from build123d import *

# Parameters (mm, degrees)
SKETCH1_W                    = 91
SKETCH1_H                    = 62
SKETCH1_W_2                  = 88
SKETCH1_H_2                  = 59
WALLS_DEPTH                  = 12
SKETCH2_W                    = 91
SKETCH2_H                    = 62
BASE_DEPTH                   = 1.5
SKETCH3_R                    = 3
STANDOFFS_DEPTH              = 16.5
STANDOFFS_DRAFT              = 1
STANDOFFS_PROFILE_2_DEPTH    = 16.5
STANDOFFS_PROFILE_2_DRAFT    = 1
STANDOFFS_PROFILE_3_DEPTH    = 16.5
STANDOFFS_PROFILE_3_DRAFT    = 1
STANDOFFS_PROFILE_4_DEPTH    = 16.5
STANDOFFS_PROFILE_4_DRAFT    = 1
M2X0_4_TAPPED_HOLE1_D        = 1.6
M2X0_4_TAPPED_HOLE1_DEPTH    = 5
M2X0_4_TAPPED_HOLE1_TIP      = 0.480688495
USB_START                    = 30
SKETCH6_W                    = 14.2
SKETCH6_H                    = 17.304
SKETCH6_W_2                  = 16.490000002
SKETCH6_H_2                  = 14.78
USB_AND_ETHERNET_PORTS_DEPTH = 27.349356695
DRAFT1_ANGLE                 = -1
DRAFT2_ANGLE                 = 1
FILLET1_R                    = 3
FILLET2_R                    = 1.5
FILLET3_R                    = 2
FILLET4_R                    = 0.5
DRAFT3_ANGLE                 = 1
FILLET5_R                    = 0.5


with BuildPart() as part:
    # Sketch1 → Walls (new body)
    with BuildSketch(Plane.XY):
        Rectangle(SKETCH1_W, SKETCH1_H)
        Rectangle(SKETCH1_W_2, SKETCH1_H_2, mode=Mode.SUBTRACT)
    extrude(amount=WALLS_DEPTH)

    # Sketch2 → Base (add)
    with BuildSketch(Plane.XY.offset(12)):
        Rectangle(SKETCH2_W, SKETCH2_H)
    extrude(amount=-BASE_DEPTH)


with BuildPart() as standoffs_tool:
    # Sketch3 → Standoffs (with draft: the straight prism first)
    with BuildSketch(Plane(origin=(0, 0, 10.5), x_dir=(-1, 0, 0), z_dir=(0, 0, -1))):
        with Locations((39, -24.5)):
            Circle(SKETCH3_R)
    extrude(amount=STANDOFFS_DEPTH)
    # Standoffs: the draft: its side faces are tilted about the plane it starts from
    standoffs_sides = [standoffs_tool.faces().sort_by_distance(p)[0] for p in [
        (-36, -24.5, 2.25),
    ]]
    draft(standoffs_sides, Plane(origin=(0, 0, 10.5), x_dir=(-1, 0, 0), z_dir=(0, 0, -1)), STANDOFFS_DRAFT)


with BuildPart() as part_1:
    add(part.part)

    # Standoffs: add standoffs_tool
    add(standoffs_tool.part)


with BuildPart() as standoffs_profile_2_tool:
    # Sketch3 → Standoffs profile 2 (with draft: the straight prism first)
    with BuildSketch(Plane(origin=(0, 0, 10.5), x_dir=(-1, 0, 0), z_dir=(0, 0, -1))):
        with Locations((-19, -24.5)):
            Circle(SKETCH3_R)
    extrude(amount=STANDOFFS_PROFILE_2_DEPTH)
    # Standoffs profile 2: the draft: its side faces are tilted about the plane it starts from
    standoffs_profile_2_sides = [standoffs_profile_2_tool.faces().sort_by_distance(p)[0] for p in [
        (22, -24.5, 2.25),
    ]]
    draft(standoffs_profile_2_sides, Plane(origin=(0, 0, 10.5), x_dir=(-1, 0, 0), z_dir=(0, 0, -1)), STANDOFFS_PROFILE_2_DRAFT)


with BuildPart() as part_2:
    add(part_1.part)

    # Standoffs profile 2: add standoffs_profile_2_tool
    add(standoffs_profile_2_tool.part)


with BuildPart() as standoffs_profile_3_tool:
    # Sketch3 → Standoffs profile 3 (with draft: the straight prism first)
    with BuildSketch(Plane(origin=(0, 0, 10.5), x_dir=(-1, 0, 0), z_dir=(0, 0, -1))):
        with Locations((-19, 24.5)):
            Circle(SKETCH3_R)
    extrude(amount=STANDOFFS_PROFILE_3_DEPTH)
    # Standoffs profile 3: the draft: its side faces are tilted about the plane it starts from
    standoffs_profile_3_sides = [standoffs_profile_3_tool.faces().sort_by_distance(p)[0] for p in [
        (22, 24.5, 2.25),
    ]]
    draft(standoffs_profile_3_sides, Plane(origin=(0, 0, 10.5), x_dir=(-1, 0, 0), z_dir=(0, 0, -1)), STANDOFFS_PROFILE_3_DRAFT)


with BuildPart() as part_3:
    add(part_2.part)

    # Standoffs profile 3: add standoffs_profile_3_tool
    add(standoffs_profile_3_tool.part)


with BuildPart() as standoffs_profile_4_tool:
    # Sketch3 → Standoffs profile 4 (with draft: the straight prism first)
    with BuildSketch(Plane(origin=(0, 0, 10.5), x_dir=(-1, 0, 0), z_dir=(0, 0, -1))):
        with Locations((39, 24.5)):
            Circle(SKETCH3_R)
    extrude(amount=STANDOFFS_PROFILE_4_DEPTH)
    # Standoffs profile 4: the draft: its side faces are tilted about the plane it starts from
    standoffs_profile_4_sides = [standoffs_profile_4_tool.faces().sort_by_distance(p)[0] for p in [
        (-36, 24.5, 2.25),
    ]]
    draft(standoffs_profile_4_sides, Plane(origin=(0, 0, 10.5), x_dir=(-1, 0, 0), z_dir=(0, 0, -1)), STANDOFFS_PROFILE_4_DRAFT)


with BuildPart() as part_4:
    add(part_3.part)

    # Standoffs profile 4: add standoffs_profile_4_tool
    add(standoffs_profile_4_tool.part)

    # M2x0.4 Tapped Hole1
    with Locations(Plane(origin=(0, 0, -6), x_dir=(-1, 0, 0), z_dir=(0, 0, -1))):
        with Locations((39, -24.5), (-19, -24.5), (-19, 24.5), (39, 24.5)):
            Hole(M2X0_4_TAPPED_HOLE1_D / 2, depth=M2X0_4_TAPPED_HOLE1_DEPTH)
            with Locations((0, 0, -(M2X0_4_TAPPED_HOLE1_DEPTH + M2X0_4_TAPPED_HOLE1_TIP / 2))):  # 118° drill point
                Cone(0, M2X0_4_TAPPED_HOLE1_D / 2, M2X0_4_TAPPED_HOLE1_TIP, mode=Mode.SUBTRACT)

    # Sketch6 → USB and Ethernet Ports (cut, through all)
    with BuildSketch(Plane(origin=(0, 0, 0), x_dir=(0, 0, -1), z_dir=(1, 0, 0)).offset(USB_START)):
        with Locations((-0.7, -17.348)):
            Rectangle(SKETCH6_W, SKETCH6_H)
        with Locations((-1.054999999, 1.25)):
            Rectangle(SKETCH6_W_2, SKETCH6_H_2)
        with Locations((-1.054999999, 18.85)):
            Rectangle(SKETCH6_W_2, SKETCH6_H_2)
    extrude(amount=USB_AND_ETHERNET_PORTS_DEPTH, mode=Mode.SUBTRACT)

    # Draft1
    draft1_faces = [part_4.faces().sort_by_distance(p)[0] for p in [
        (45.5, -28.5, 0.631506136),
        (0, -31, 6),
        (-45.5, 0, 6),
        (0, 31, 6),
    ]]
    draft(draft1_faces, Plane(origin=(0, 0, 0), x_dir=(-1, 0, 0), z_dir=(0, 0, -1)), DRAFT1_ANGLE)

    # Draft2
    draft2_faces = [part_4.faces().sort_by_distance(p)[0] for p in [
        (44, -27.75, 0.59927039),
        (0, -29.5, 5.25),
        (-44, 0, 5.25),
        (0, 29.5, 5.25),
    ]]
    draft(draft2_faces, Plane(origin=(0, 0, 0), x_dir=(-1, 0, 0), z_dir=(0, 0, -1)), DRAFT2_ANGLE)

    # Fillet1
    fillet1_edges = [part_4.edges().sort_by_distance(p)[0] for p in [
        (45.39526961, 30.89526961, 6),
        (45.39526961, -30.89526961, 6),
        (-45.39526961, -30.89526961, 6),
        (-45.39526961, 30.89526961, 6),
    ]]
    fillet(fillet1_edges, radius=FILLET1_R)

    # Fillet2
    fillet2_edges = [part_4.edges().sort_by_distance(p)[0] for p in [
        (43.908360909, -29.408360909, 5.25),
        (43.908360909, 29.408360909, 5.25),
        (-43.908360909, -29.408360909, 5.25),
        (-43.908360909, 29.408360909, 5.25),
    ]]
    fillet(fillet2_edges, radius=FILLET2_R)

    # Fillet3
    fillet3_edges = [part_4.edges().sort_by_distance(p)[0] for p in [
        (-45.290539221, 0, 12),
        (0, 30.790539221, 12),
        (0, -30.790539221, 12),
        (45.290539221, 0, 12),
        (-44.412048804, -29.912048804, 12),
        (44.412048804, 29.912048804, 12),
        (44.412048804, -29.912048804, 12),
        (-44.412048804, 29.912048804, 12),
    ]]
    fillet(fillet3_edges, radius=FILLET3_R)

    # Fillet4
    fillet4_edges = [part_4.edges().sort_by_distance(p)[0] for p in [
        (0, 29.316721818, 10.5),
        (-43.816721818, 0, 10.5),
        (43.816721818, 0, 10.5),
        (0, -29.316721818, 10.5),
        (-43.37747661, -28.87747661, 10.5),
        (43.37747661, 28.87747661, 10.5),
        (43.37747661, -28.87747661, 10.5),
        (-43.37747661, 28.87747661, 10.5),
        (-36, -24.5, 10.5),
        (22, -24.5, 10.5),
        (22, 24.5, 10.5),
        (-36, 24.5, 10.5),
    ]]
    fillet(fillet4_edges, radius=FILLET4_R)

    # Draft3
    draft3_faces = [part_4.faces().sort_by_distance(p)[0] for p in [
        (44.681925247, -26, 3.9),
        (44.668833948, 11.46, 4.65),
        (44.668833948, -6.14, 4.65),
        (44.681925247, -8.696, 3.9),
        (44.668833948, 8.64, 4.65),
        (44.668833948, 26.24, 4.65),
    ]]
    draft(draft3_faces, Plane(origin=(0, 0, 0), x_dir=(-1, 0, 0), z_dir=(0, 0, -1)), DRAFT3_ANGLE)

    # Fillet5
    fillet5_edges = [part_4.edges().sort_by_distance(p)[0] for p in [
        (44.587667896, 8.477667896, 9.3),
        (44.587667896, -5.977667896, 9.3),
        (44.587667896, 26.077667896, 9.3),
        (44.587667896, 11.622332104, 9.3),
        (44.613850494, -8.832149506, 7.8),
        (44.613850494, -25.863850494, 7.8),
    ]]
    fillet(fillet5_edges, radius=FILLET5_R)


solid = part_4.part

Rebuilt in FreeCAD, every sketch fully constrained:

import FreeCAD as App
import Part
import Sketcher
Q = App.Units.Quantity


def edges_at(feature, points):
    """Names of the edges that pass closest to the given points."""
    edges = feature.Shape.Edges
    near = lambda p: min(range(len(edges)), key=lambda i: edges[i].distToShape(Part.Vertex(*p))[0])
    return sorted({f"Edge{near(p) + 1}" for p in points})


def faces_at(feature, points):
    """Names of the faces that lie closest to the given points."""
    faces = feature.Shape.Faces
    near = lambda p: min(range(len(faces)), key=lambda i: faces[i].distToShape(Part.Vertex(*p))[0])
    return sorted({f"Face{near(p) + 1}" for p in points})

doc = App.newDocument("Part")
body = doc.addObject("PartDesign::Body", "Body")

# Sketch on XY plane
sketch1 = doc.addObject("Sketcher::SketchObject", "Sketch")
body.addObject(sketch1)
sketch1.AttachmentSupport = (doc.XY_Plane, [""])
sketch1.MapMode = "FlatFace"
sketch1.addGeometry(Part.LineSegment(App.Vector(-46, 31, 0), App.Vector(-46, -31, 0)), False)
sketch1.addGeometry(Part.LineSegment(App.Vector(-46, -31, 0), App.Vector(46, -31, 0)), False)
sketch1.addGeometry(Part.LineSegment(App.Vector(46, -31, 0), App.Vector(46, 31, 0)), False)
sketch1.addGeometry(Part.LineSegment(App.Vector(46, 31, 0), App.Vector(-46, 31, 0)), False)
sketch1.addGeometry(Part.LineSegment(App.Vector(44, -30, 0), App.Vector(-44, -30, 0)), False)
sketch1.addGeometry(Part.LineSegment(App.Vector(-44, -30, 0), App.Vector(-44, 30, 0)), False)
sketch1.addGeometry(Part.LineSegment(App.Vector(-44, 30, 0), App.Vector(44, 30, 0)), False)
sketch1.addGeometry(Part.LineSegment(App.Vector(44, 30, 0), App.Vector(44, -30, 0)), False)
sketch1.addConstraint(Sketcher.Constraint("Coincident", 0, 2, 1, 1))
sketch1.addConstraint(Sketcher.Constraint("Coincident", 1, 2, 2, 1))
sketch1.addConstraint(Sketcher.Constraint("Coincident", 2, 2, 3, 1))
sketch1.addConstraint(Sketcher.Constraint("Coincident", 3, 2, 0, 1))
sketch1.addConstraint(Sketcher.Constraint("Coincident", 4, 2, 5, 1))
sketch1.addConstraint(Sketcher.Constraint("Coincident", 5, 2, 6, 1))
sketch1.addConstraint(Sketcher.Constraint("Coincident", 6, 2, 7, 1))
sketch1.addConstraint(Sketcher.Constraint("Coincident", 7, 2, 4, 1))
sketch1.addConstraint(Sketcher.Constraint("Vertical", 0))
sketch1.addConstraint(Sketcher.Constraint("Horizontal", 1))
sketch1.addConstraint(Sketcher.Constraint("Vertical", 2))
sketch1.addConstraint(Sketcher.Constraint("Horizontal", 3))
sketch1.addConstraint(Sketcher.Constraint("Horizontal", 4))
sketch1.addConstraint(Sketcher.Constraint("Vertical", 5))
sketch1.addConstraint(Sketcher.Constraint("Horizontal", 6))
sketch1.addConstraint(Sketcher.Constraint("Vertical", 7))
sketch1.addConstraint(Sketcher.Constraint("Symmetric", 0, 2, 2, 2, -1, 1))
sketch1.addConstraint(Sketcher.Constraint("Symmetric", 4, 2, 6, 2, -1, 1))
sketch1.addConstraint(Sketcher.Constraint("DistanceX", 1, 1, 1, 2, Q("91 mm")))
sketch1.addConstraint(Sketcher.Constraint("DistanceX", 4, 2, 4, 1, Q("88 mm")))
sketch1.addConstraint(Sketcher.Constraint("DistanceY", 0, 2, 0, 1, Q("62 mm")))
sketch1.addConstraint(Sketcher.Constraint("DistanceY", 5, 1, 5, 2, Q("59 mm")))
pad1 = doc.addObject("PartDesign::Pad", "Pad")
body.addObject(pad1)
pad1.Profile = sketch1
pad1.Length = 12

# Sketch on XY plane
sketch2 = doc.addObject("Sketcher::SketchObject", "Sketch001")
body.addObject(sketch2)
sketch2.AttachmentSupport = (doc.XY_Plane, [""])
sketch2.MapMode = "FlatFace"
sketch2.AttachmentOffset = App.Placement(App.Vector(0, 0, 12), App.Rotation())
sketch2.addGeometry(Part.LineSegment(App.Vector(-46, 31, 0), App.Vector(-46, -31, 0)), False)
sketch2.addGeometry(Part.LineSegment(App.Vector(-46, -31, 0), App.Vector(46, -31, 0)), False)
sketch2.addGeometry(Part.LineSegment(App.Vector(46, -31, 0), App.Vector(46, 31, 0)), False)
sketch2.addGeometry(Part.LineSegment(App.Vector(46, 31, 0), App.Vector(-46, 31, 0)), False)
sketch2.addConstraint(Sketcher.Constraint("Coincident", 0, 2, 1, 1))
sketch2.addConstraint(Sketcher.Constraint("Coincident", 1, 2, 2, 1))
sketch2.addConstraint(Sketcher.Constraint("Coincident", 2, 2, 3, 1))
sketch2.addConstraint(Sketcher.Constraint("Coincident", 3, 2, 0, 1))
sketch2.addConstraint(Sketcher.Constraint("Vertical", 0))
sketch2.addConstraint(Sketcher.Constraint("Horizontal", 1))
sketch2.addConstraint(Sketcher.Constraint("Vertical", 2))
sketch2.addConstraint(Sketcher.Constraint("Horizontal", 3))
sketch2.addConstraint(Sketcher.Constraint("Symmetric", 0, 2, 2, 2, -1, 1))
sketch2.addConstraint(Sketcher.Constraint("DistanceX", 1, 1, 1, 2, Q("91 mm")))
sketch2.addConstraint(Sketcher.Constraint("DistanceY", 0, 2, 0, 1, Q("62 mm")))
pad2 = doc.addObject("PartDesign::Pad", "Pad001")
body.addObject(pad2)
pad2.Profile = sketch2
pad2.Length = 1.5
pad2.Reversed = True
body2 = doc.addObject("PartDesign::Body", "Body001")

# Sketch on XY plane
sketch3 = doc.addObject("Sketcher::SketchObject", "Sketch002")
body2.addObject(sketch3)
sketch3.AttachmentSupport = (doc.getObject("XY_Plane001"), [""])
sketch3.MapMode = "FlatFace"
sketch3.AttachmentOffset = App.Placement(App.Vector(0, 0, 10.5), App.Rotation())
sketch3.addGeometry(Part.Circle(App.Vector(-39, -24.5, 0), App.Vector(0, 0, 1), 3), False)
sketch3.addConstraint(Sketcher.Constraint("Diameter", 0, Q("6 mm")))
sketch3.addConstraint(Sketcher.Constraint("DistanceX", 0, 3, -1, 1, Q("39 mm")))
sketch3.addConstraint(Sketcher.Constraint("DistanceY", 0, 3, -1, 1, Q("24.5 mm")))
pad3 = doc.addObject("PartDesign::Pad", "Pad002")
body2.addObject(pad3)
pad3.Profile = sketch3
pad3.Length = 16.5
pad3.Reversed = True
doc.recompute()

datumplane = doc.addObject("PartDesign::Plane", "DatumPlane")
body2.addObject(datumplane)
datumplane.AttachmentSupport = (doc.getObject("XY_Plane001"), [""])
datumplane.MapMode = "FlatFace"
datumplane.AttachmentOffset = App.Placement(App.Vector(0, 0, 10.5), App.Rotation())
draft = doc.addObject("PartDesign::Draft", "Draft")
body2.addObject(draft)
draft.Base = (pad3, faces_at(pad3, [(-36, -24.5, 2.25)]))
draft.NeutralPlane = (datumplane, [""])
draft.Angle = 1
draft.Reversed = True
doc.recompute()

boolean = doc.addObject("PartDesign::Boolean", "Boolean")
body.addObject(boolean)
boolean.Type = "Fuse"
boolean.addObjects([body2])
body3 = doc.addObject("PartDesign::Body", "Body002")

# Sketch on XY plane
sketch4 = doc.addObject("Sketcher::SketchObject", "Sketch003")
body3.addObject(sketch4)
sketch4.AttachmentSupport = (doc.getObject("XY_Plane002"), [""])
sketch4.MapMode = "FlatFace"
sketch4.AttachmentOffset = App.Placement(App.Vector(0, 0, 10.5), App.Rotation())
sketch4.addGeometry(Part.Circle(App.Vector(19, -24.5, 0), App.Vector(0, 0, 1), 3), False)
sketch4.addConstraint(Sketcher.Constraint("Diameter", 0, Q("6 mm")))
sketch4.addConstraint(Sketcher.Constraint("DistanceX", -1, 1, 0, 3, Q("19 mm")))
sketch4.addConstraint(Sketcher.Constraint("DistanceY", 0, 3, -1, 1, Q("24.5 mm")))
pad4 = doc.addObject("PartDesign::Pad", "Pad003")
body3.addObject(pad4)
pad4.Profile = sketch4
pad4.Length = 16.5
pad4.Reversed = True
doc.recompute()

datumplane2 = doc.addObject("PartDesign::Plane", "DatumPlane001")
body3.addObject(datumplane2)
datumplane2.AttachmentSupport = (doc.getObject("XY_Plane002"), [""])
datumplane2.MapMode = "FlatFace"
datumplane2.AttachmentOffset = App.Placement(App.Vector(0, 0, 10.5), App.Rotation())
draft2 = doc.addObject("PartDesign::Draft", "Draft001")
body3.addObject(draft2)
draft2.Base = (pad4, faces_at(pad4, [(22, -24.5, 2.25)]))
draft2.NeutralPlane = (datumplane2, [""])
draft2.Angle = 1
draft2.Reversed = True
doc.recompute()

boolean2 = doc.addObject("PartDesign::Boolean", "Boolean001")
body.addObject(boolean2)
boolean2.Type = "Fuse"
boolean2.addObjects([body3])
body4 = doc.addObject("PartDesign::Body", "Body003")

# Sketch on XY plane
sketch5 = doc.addObject("Sketcher::SketchObject", "Sketch004")
body4.addObject(sketch5)
sketch5.AttachmentSupport = (doc.getObject("XY_Plane003"), [""])
sketch5.MapMode = "FlatFace"
sketch5.AttachmentOffset = App.Placement(App.Vector(0, 0, 10.5), App.Rotation())
sketch5.addGeometry(Part.Circle(App.Vector(19, 24.5, 0), App.Vector(0, 0, 1), 3), False)
sketch5.addConstraint(Sketcher.Constraint("Diameter", 0, Q("6 mm")))
sketch5.addConstraint(Sketcher.Constraint("DistanceX", -1, 1, 0, 3, Q("19 mm")))
sketch5.addConstraint(Sketcher.Constraint("DistanceY", -1, 1, 0, 3, Q("24.5 mm")))
pad5 = doc.addObject("PartDesign::Pad", "Pad004")
body4.addObject(pad5)
pad5.Profile = sketch5
pad5.Length = 16.5
pad5.Reversed = True
doc.recompute()

datumplane3 = doc.addObject("PartDesign::Plane", "DatumPlane002")
body4.addObject(datumplane3)
datumplane3.AttachmentSupport = (doc.getObject("XY_Plane003"), [""])
datumplane3.MapMode = "FlatFace"
datumplane3.AttachmentOffset = App.Placement(App.Vector(0, 0, 10.5), App.Rotation())
draft3 = doc.addObject("PartDesign::Draft", "Draft002")
body4.addObject(draft3)
draft3.Base = (pad5, faces_at(pad5, [(22, 24.5, 2.25)]))
draft3.NeutralPlane = (datumplane3, [""])
draft3.Angle = 1
draft3.Reversed = True
doc.recompute()

boolean3 = doc.addObject("PartDesign::Boolean", "Boolean002")
body.addObject(boolean3)
boolean3.Type = "Fuse"
boolean3.addObjects([body4])
body5 = doc.addObject("PartDesign::Body", "Body004")

# Sketch on XY plane
sketch6 = doc.addObject("Sketcher::SketchObject", "Sketch005")
body5.addObject(sketch6)
sketch6.AttachmentSupport = (doc.getObject("XY_Plane004"), [""])
sketch6.MapMode = "FlatFace"
sketch6.AttachmentOffset = App.Placement(App.Vector(0, 0, 10.5), App.Rotation())
sketch6.addGeometry(Part.Circle(App.Vector(-39, 24.5, 0), App.Vector(0, 0, 1), 3), False)
sketch6.addConstraint(Sketcher.Constraint("Diameter", 0, Q("6 mm")))
sketch6.addConstraint(Sketcher.Constraint("DistanceX", 0, 3, -1, 1, Q("39 mm")))
sketch6.addConstraint(Sketcher.Constraint("DistanceY", -1, 1, 0, 3, Q("24.5 mm")))
pad6 = doc.addObject("PartDesign::Pad", "Pad005")
body5.addObject(pad6)
pad6.Profile = sketch6
pad6.Length = 16.5
pad6.Reversed = True
doc.recompute()

datumplane4 = doc.addObject("PartDesign::Plane", "DatumPlane003")
body5.addObject(datumplane4)
datumplane4.AttachmentSupport = (doc.getObject("XY_Plane004"), [""])
datumplane4.MapMode = "FlatFace"
datumplane4.AttachmentOffset = App.Placement(App.Vector(0, 0, 10.5), App.Rotation())
draft4 = doc.addObject("PartDesign::Draft", "Draft003")
body5.addObject(draft4)
draft4.Base = (pad6, faces_at(pad6, [(-36, 24.5, 2.25)]))
draft4.NeutralPlane = (datumplane4, [""])
draft4.Angle = 1
draft4.Reversed = True
doc.recompute()

boolean4 = doc.addObject("PartDesign::Boolean", "Boolean003")
body.addObject(boolean4)
boolean4.Type = "Fuse"
boolean4.addObjects([body5])

# Sketch on XY plane
sketch7 = doc.addObject("Sketcher::SketchObject", "Sketch006")
body.addObject(sketch7)
sketch7.AttachmentSupport = (doc.XY_Plane, [""])
sketch7.MapMode = "FlatFace"
sketch7.AttachmentOffset = App.Placement(App.Vector(0, 0, -6), App.Rotation())
sketch7.addGeometry(Part.Circle(App.Vector(-39, -24.5, 0), App.Vector(0, 0, 1), 0.8), False)
sketch7.addGeometry(Part.Circle(App.Vector(19, -24.5, 0), App.Vector(0, 0, 1), 0.8), False)
sketch7.addGeometry(Part.Circle(App.Vector(19, 24.5, 0), App.Vector(0, 0, 1), 0.8), False)
sketch7.addGeometry(Part.Circle(App.Vector(-39, 24.5, 0), App.Vector(0, 0, 1), 0.8), False)
sketch7.addConstraint(Sketcher.Constraint("Equal", 0, 1))
sketch7.addConstraint(Sketcher.Constraint("Equal", 1, 2))
sketch7.addConstraint(Sketcher.Constraint("Equal", 2, 3))
sketch7.addConstraint(Sketcher.Constraint("Symmetric", 1, 3, 2, 3, -1))
sketch7.addConstraint(Sketcher.Constraint("Symmetric", 0, 3, 3, 3, -1))
sketch7.addConstraint(Sketcher.Constraint("Horizontal", 0, 3, 1, 3))
sketch7.addConstraint(Sketcher.Constraint("Diameter", 0, Q("1.6 mm")))
sketch7.addConstraint(Sketcher.Constraint("DistanceX", 0, 3, -1, 1, Q("39 mm")))
sketch7.addConstraint(Sketcher.Constraint("DistanceX", -1, 1, 1, 3, Q("19 mm")))
sketch7.addConstraint(Sketcher.Constraint("DistanceY", 1, 3, 2, 3, Q("49 mm")))
doc.recompute()
hole = doc.addObject("PartDesign::Hole", "Hole")
body.addObject(hole)
hole.Profile = sketch7
hole.ThreadType = "None"
hole.Diameter = 1.6
hole.DepthType = "Dimension"
hole.Depth = 5
hole.DrillPoint = "Angled"
hole.DrillPointAngle = 118
hole.Reversed = True

# Sketch on YZ plane
sketch8 = doc.addObject("Sketcher::SketchObject", "Sketch007")
body.addObject(sketch8)
sketch8.AttachmentSupport = (doc.YZ_Plane, [""])
sketch8.MapMode = "FlatFace"
sketch8.AttachmentOffset = App.Placement(App.Vector(0, 0, 30), App.Rotation())
sketch8.addGeometry(Part.LineSegment(App.Vector(-9, 8, 0), App.Vector(-26, 8, 0)), False)
sketch8.addGeometry(Part.LineSegment(App.Vector(-26, 8, 0), App.Vector(-26, -6, 0)), False)
sketch8.addGeometry(Part.LineSegment(App.Vector(-26, -6, 0), App.Vector(-9, -6, 0)), False)
sketch8.addGeometry(Part.LineSegment(App.Vector(-9, -6, 0), App.Vector(-9, 8, 0)), False)
sketch8.addGeometry(Part.LineSegment(App.Vector(9, 9, 0), App.Vector(-6, 9, 0)), False)
sketch8.addGeometry(Part.LineSegment(App.Vector(-6, 9, 0), App.Vector(-6, -7, 0)), False)
sketch8.addGeometry(Part.LineSegment(App.Vector(-6, -7, 0), App.Vector(9, -7, 0)), False)
sketch8.addGeometry(Part.LineSegment(App.Vector(9, -7, 0), App.Vector(9, 9, 0)), False)
sketch8.addGeometry(Part.LineSegment(App.Vector(26, 9, 0), App.Vector(11, 9, 0)), False)
sketch8.addGeometry(Part.LineSegment(App.Vector(11, 9, 0), App.Vector(11, -7, 0)), False)
sketch8.addGeometry(Part.LineSegment(App.Vector(11, -7, 0), App.Vector(26, -7, 0)), False)
sketch8.addGeometry(Part.LineSegment(App.Vector(26, -7, 0), App.Vector(26, 9, 0)), False)
sketch8.addConstraint(Sketcher.Constraint("Coincident", 0, 2, 1, 1))
sketch8.addConstraint(Sketcher.Constraint("Coincident", 1, 2, 2, 1))
sketch8.addConstraint(Sketcher.Constraint("Coincident", 2, 2, 3, 1))
sketch8.addConstraint(Sketcher.Constraint("Coincident", 3, 2, 0, 1))
sketch8.addConstraint(Sketcher.Constraint("Coincident", 4, 2, 5, 1))
sketch8.addConstraint(Sketcher.Constraint("Coincident", 5, 2, 6, 1))
sketch8.addConstraint(Sketcher.Constraint("Coincident", 6, 2, 7, 1))
sketch8.addConstraint(Sketcher.Constraint("Coincident", 7, 2, 4, 1))
sketch8.addConstraint(Sketcher.Constraint("Coincident", 8, 2, 9, 1))
sketch8.addConstraint(Sketcher.Constraint("Coincident", 9, 2, 10, 1))
sketch8.addConstraint(Sketcher.Constraint("Coincident", 10, 2, 11, 1))
sketch8.addConstraint(Sketcher.Constraint("Coincident", 11, 2, 8, 1))
sketch8.addConstraint(Sketcher.Constraint("Horizontal", 0))
sketch8.addConstraint(Sketcher.Constraint("Vertical", 1))
sketch8.addConstraint(Sketcher.Constraint("Horizontal", 2))
sketch8.addConstraint(Sketcher.Constraint("Vertical", 3))
sketch8.addConstraint(Sketcher.Constraint("Horizontal", 4))
sketch8.addConstraint(Sketcher.Constraint("Vertical", 5))
sketch8.addConstraint(Sketcher.Constraint("Horizontal", 6))
sketch8.addConstraint(Sketcher.Constraint("Vertical", 7))
sketch8.addConstraint(Sketcher.Constraint("Horizontal", 8))
sketch8.addConstraint(Sketcher.Constraint("Vertical", 9))
sketch8.addConstraint(Sketcher.Constraint("Horizontal", 10))
sketch8.addConstraint(Sketcher.Constraint("Vertical", 11))
sketch8.addConstraint(Sketcher.Constraint("Horizontal", 7, 2, 8, 2))
sketch8.addConstraint(Sketcher.Constraint("Horizontal", 6, 2, 9, 2))
sketch8.addConstraint(Sketcher.Constraint("Equal", 6, 8))
sketch8.addConstraint(Sketcher.Constraint("DistanceY", 1, 2, 1, 1, Q("14.2 mm")))
sketch8.addConstraint(Sketcher.Constraint("DistanceX", 0, 2, -1, 1, Q("26 mm")))
sketch8.addConstraint(Sketcher.Constraint("DistanceX", 4, 2, 4, 1, Q("14.78 mm")))
sketch8.addConstraint(Sketcher.Constraint("DistanceY", 5, 2, 5, 1, Q("16.49 mm")))
sketch8.addConstraint(Sketcher.Constraint("DistanceY", -1, 1, 0, 2, Q("7.8 mm")))
sketch8.addConstraint(Sketcher.Constraint("DistanceY", -1, 1, 4, 2, Q("9.3 mm")))
sketch8.addConstraint(Sketcher.Constraint("DistanceX", 4, 2, 8, 2, Q("17.6 mm")))
sketch8.addConstraint(Sketcher.Constraint("DistanceX", 0, 2, 0, 1, Q("17.304 mm")))
sketch8.addConstraint(Sketcher.Constraint("DistanceX", 4, 2, -1, 1, Q("6.14 mm")))
pocket1 = doc.addObject("PartDesign::Pocket", "Pocket")
body.addObject(pocket1)
pocket1.Profile = sketch8
pocket1.Type = "ThroughAll"
pocket1.Reversed = True
doc.recompute()

draft5 = doc.addObject("PartDesign::Draft", "Draft004")
body.addObject(draft5)
draft5.Base = (pocket1, faces_at(pocket1, [
    (45.5, -12.4, 8.4),
    (0, -31, 6),
    (-45.5, 0, 6),
    (0, 31, 6),
]))
draft5.NeutralPlane = (doc.XY_Plane, [""])
draft5.Angle = 1
draft5.Reversed = False
doc.recompute()

draft6 = doc.addObject("PartDesign::Draft", "Draft005")
body.addObject(draft6)
draft6.Base = (draft5, faces_at(draft5, [
    (44, 0, 9.45),
    (0, -29.5, 5.25),
    (-44, 0, 5.25),
    (0, 29.5, 5.25),
]))
draft6.NeutralPlane = (doc.XY_Plane, [""])
draft6.Angle = 1
draft6.Reversed = True
doc.recompute()

fillet = doc.addObject("PartDesign::Fillet", "Fillet")
body.addObject(fillet)
fillet.Base = (draft6, edges_at(draft6, [
    (45.395, 30.895, 6),
    (45.395, -30.895, 6),
    (-45.395, -30.895, 6),
    (-45.395, 30.895, 6),
]))
fillet.Radius = 3
doc.recompute()

fillet2 = doc.addObject("PartDesign::Fillet", "Fillet001")
body.addObject(fillet2)
fillet2.Base = (fillet, edges_at(fillet, [
    (43.908, -29.408, 5.25),
    (43.908, 29.408, 5.25),
    (-43.908, -29.408, 5.25),
    (-43.908, 29.408, 5.25),
]))
fillet2.Radius = 1.5
doc.recompute()

fillet3 = doc.addObject("PartDesign::Fillet", "Fillet002")
body.addObject(fillet3)
fillet3.Base = (fillet2, edges_at(fillet2, [
    (-45.291, 0, 12),
    (0, 30.791, 12),
    (0, -30.791, 12),
    (45.291, 0, 12),
    (-44.412, -29.912, 12),
    (44.412, 29.912, 12),
    (44.412, -29.912, 12),
    (-44.412, 29.912, 12),
]))
fillet3.Radius = 2
doc.recompute()

fillet4 = doc.addObject("PartDesign::Fillet", "Fillet003")
body.addObject(fillet4)
fillet4.Base = (fillet3, edges_at(fillet3, [
    (0, 29.317, 10.5),
    (-43.817, 0, 10.5),
    (43.817, 0, 10.5),
    (0, -29.317, 10.5),
    (-43.377, -28.877, 10.5),
    (43.377, 28.877, 10.5),
    (43.377, -28.877, 10.5),
    (-43.377, 28.877, 10.5),
    (-36, -24.5, 10.5),
    (22, -24.5, 10.5),
    (22, 24.5, 10.5),
    (-36, 24.5, 10.5),
]))
fillet4.Radius = 0.5
doc.recompute()

draft7 = doc.addObject("PartDesign::Draft", "Draft006")
body.addObject(draft7)
draft7.Base = (fillet4, faces_at(fillet4, [
    (44.682, -26, 3.9),
    (44.669, 11.46, 4.65),
    (44.669, -6.14, 4.65),
    (44.682, -8.696, 3.9),
    (44.669, 8.64, 4.65),
    (44.669, 26.24, 4.65),
]))
draft7.NeutralPlane = (doc.XY_Plane, [""])
draft7.Angle = 1
draft7.Reversed = True
doc.recompute()

fillet5 = doc.addObject("PartDesign::Fillet", "Fillet004")
body.addObject(fillet5)
fillet5.Base = (draft7, edges_at(draft7, [
    (44.588, 8.478, 9.3),
    (44.588, -5.978, 9.3),
    (44.588, 26.078, 9.3),
    (44.588, 11.622, 9.3),
    (44.614, -8.832, 7.8),
    (44.614, -25.864, 7.8),
]))
fillet5.Radius = 0.5

doc.recompute()
